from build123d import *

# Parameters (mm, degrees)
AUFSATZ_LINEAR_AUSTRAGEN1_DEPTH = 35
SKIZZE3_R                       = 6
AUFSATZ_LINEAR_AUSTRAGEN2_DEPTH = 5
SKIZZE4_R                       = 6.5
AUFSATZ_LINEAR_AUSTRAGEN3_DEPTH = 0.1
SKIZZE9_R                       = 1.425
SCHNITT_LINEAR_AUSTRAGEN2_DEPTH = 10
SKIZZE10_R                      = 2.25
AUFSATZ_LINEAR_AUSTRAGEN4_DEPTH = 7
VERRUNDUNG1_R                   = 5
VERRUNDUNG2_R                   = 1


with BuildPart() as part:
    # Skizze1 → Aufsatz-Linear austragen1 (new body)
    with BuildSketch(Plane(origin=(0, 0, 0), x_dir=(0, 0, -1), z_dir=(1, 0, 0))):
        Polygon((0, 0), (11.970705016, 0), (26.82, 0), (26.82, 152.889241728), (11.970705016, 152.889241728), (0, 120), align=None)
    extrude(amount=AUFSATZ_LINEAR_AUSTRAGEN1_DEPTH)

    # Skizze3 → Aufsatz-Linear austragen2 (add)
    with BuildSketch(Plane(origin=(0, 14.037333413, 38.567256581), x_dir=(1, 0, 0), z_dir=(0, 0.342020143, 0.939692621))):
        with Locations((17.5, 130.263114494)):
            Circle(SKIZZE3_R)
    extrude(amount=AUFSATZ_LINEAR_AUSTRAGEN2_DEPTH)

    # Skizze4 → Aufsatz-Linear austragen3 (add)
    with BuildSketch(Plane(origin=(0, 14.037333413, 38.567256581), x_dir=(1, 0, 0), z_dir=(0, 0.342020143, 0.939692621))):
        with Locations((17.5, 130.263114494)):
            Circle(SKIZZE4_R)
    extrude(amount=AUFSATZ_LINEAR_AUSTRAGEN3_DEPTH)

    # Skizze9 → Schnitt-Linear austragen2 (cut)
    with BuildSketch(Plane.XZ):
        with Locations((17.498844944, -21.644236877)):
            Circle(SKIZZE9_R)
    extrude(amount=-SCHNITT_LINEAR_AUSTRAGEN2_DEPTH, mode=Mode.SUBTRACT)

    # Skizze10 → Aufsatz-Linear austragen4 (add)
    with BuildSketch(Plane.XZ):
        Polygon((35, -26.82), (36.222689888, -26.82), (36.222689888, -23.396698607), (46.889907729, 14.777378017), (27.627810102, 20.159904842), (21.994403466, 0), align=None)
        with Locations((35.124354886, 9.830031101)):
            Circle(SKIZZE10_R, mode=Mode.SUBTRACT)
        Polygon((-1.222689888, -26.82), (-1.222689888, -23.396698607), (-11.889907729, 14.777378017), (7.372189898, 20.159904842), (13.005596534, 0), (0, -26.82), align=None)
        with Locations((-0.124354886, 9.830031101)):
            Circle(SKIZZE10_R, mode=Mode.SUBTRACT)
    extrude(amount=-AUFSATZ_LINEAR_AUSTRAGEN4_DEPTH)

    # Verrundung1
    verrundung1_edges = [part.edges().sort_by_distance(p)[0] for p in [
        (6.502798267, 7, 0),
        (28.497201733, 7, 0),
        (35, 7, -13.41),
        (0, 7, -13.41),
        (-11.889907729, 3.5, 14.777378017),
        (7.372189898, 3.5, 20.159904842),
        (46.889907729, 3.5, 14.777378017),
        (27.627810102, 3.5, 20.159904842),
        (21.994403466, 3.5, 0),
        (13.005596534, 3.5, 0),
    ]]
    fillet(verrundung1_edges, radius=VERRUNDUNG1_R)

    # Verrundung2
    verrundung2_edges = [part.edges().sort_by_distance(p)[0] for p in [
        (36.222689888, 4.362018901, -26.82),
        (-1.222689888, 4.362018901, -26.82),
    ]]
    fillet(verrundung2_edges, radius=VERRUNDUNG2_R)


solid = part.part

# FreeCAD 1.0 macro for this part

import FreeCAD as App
import Part
import Sketcher
from FreeCAD import Vector
Q = App.Units.Quantity


def edges_at(feature, points):
    """Names of the edges that pass closest to the given points."""
    edges = feature.Shape.Edges
    near = lambda p: min(range(len(edges)), key=lambda i: edges[i].distToShape(Part.Vertex(*p))[0])
    return sorted({f"Edge{near(p) + 1}" for p in points})


def add_polygon(sketch, points):
    """Adds a closed chain of lines whose ends are joined by coincident constraints."""
    first, n = sketch.GeometryCount, len(points)
    for a, b in zip(points, points[1:] + points[:1]):
        sketch.addGeometry(Part.LineSegment(App.Vector(*a, 0), App.Vector(*b, 0)), False)
    for i in range(n):
        sketch.addConstraint(Sketcher.Constraint("Coincident", first + i, 2, first + (i + 1) % n, 1))

doc = App.newDocument("Part")
body = doc.addObject("PartDesign::Body", "Body")

# Sketch on YZ plane
sketch1 = body.newObject("Sketcher::SketchObject", "Sketch")
sketch1.AttachmentSupport = (doc.getObject("YZ_Plane"), [""])
sketch1.MapMode = "FlatFace"
add_polygon(sketch1, [(0, 0), (0, -27), (153, -27), (153, -12), (120, 0)])  # lines 0-4
sketch1.addConstraint([
    Sketcher.Constraint("Vertical", 0),
    Sketcher.Constraint("Horizontal", 1),
    Sketcher.Constraint("Vertical", 2),
    Sketcher.Constraint("Horizontal", 4),
    Sketcher.Constraint("Coincident", 4, 2, -1, 1),
    Sketcher.Constraint("DistanceX", 4, 2, 4, 1, 120.0),
    Sketcher.Constraint("Angle", 3, Q("160 deg")),
    Sketcher.Constraint("Distance", 3, 35.0),
    Sketcher.Constraint("DistanceY", 0, 2, 0, 1, 26.82),
])
pad1 = body.newObject("PartDesign::Pad", "Pad")
pad1.Profile = sketch1
pad1.Length = 35

# Sketch on an angled plane
sketch2 = body.newObject("Sketcher::SketchObject", "Sketch001")
sketch2.Placement = App.Placement(Vector(0, 14.037333, 38.567257), App.Rotation(Vector(1, 0, 0), Vector(0, 0.939692621, -0.342020143), Vector(0, 0.342020143, 0.939692621), "ZXY"))
sketch2.addGeometry(Part.Circle(Vector(18, 130, 0), Vector(0, 0, 1), 6), False)
sketch2.addConstraint([
    Sketcher.Constraint("Diameter", 0, 12.0),
    Sketcher.Constraint("DistanceX", -1, 1, 0, 3, 17.5),
    Sketcher.Constraint("DistanceY", -1, 1, 0, 3, 130.263115),
])
pad2 = body.newObject("PartDesign::Pad", "Pad001")
pad2.Profile = sketch2
pad2.Length = 5

# Sketch on an angled plane
sketch3 = body.newObject("Sketcher::SketchObject", "Sketch002")
sketch3.Placement = App.Placement(Vector(0, 14.037333, 38.567257), App.Rotation(Vector(1, 0, 0), Vector(0, 0.939692621, -0.342020143), Vector(0, 0.342020143, 0.939692621), "ZXY"))
sketch3.addGeometry(Part.Circle(Vector(18, 130, 0), Vector(0, 0, 1), 6), False)
sketch3.addConstraint([
    Sketcher.Constraint("Diameter", 0, 13.0),
    Sketcher.Constraint("DistanceX", -1, 1, 0, 3, 17.5),
    Sketcher.Constraint("DistanceY", -1, 1, 0, 3, 130.263115),
])
pad3 = body.newObject("PartDesign::Pad", "Pad002")
pad3.Profile = sketch3
pad3.Length = 0.1

# Sketch on XZ plane
sketch4 = body.newObject("Sketcher::SketchObject", "Sketch003")
sketch4.AttachmentSupport = (doc.getObject("XZ_Plane"), [""])
sketch4.MapMode = "FlatFace"
sketch4.addGeometry(Part.Circle(Vector(17.5, -21.6, 0), Vector(0, 0, 1), 1.4), False)
sketch4.addConstraint([
    Sketcher.Constraint("Diameter", 0, 2.85),
    Sketcher.Constraint("DistanceX", -1, 1, 0, 3, 17.498845),
    Sketcher.Constraint("DistanceY", 0, 3, -1, 1, 21.644237),
])
pocket1 = body.newObject("PartDesign::Pocket", "Pocket")
pocket1.Profile = sketch4
pocket1.Length = 10

# Sketch on XZ plane
sketch5 = body.newObject("Sketcher::SketchObject", "Sketch004")
sketch5.AttachmentSupport = (doc.getObject("XZ_Plane"), [""])
sketch5.MapMode = "FlatFace"
add_polygon(sketch5, [(35, -26.8), (36.2, -26.8), (36.2, -23.4), (46.9, 14.8), (27.6, 20.2), (22, 0)])  # lines 0-5
sketch5.addGeometry(Part.Circle(Vector(35.1, 9.8, 0), Vector(0, 0, 1), 2.2), False)  # 6
add_polygon(sketch5, [(-1.2, -23.4), (-1.2, -26.8), (0, -26.8), (13, 0), (7.4, 20.2), (-11.9, 14.8)])  # lines 7-12
sketch5.addGeometry(Part.Circle(Vector(-0.1, 9.8, 0), Vector(0, 0, 1), 2.2), False)  # 13
sketch5.addConstraint([
    Sketcher.Constraint("Horizontal", 0),
    Sketcher.Constraint("Vertical", 1),
    Sketcher.Constraint("Vertical", 7),
    Sketcher.Constraint("Horizontal", 8),
    Sketcher.Constraint("Equal", 6, 13),
    Sketcher.Constraint("PointOnObject", 4, 2, -1),
    Sketcher.Constraint("PointOnObject", 8, 2, -2),
    Sketcher.Constraint("PointOnObject", 9, 2, -1),
    Sketcher.Constraint("Perpendicular", 2, 3),
    Sketcher.Constraint("Perpendicular", 3, 4),
    Sketcher.Constraint("Perpendicular", 10, 11),
    Sketcher.Constraint("Perpendicular", 11, 12),
    Sketcher.Constraint("Horizontal", 6, 3, 13, 3),
    Sketcher.Constraint("Horizontal", 5, 2, 7, 2),
    Sketcher.Constraint("Horizontal", 3, 2, 10, 2),
    Sketcher.Constraint("Horizontal", 2, 2, 11, 2),
    Sketcher.Constraint("Horizontal", 1, 2, 12, 2),
    Sketcher.Constraint("Equal", 0, 8),
    Sketcher.Constraint("Equal", 5, 9),
    Sketcher.Constraint("Diameter", 6, 4.5),
    Sketcher.Constraint("Distance", 3, 20.0),
    Sketcher.Constraint("DistanceX", -1, 1, 5, 2, 35.0),
    Sketcher.Constraint("DistanceY", 0, 2, -1, 1, 26.82),
    Sketcher.Constraint("DistanceY", 1, 1, 1, 2, 3.423301),
    Sketcher.Constraint("Distance", 4, 20.932201),
    Sketcher.Constraint("DistanceX", 0, 1, 0, 2, 1.22269),
    Sketcher.Constraint("Distance", 2, 39.636469),
    Sketcher.Constraint("DistanceY", -1, 1, 6, 3, 9.830031),
    Sketcher.Constraint("DistanceX", 13, 3, 6, 3, 35.24871),
    Sketcher.Constraint("DistanceX", 4, 2, 6, 3, 13.129951),
])
pad4 = body.newObject("PartDesign::Pad", "Pad003")
pad4.Profile = sketch5
pad4.Length = 7
pad4.Reversed = True
doc.recompute()

fillet = body.newObject("PartDesign::Fillet", "Fillet")
fillet.Base = (pad4, edges_at(pad4, [
    (6.503, 7, 0),
    (28.497, 7, 0),
    (35, 7, -13.41),
    (0, 7, -13.41),
    (-11.89, 3.5, 14.777),
    (7.372, 3.5, 20.16),
    (46.89, 3.5, 14.777),
    (27.628, 3.5, 20.16),
    (21.994, 3.5, 0),
    (13.006, 3.5, 0),
]))
fillet.Radius = 5
doc.recompute()

fillet2 = body.newObject("PartDesign::Fillet", "Fillet001")
fillet2.Base = (fillet, edges_at(fillet, [(36.223, 4.362, -26.82), (-1.223, 4.362, -26.82)]))
fillet2.Radius = 1

doc.recompute()
